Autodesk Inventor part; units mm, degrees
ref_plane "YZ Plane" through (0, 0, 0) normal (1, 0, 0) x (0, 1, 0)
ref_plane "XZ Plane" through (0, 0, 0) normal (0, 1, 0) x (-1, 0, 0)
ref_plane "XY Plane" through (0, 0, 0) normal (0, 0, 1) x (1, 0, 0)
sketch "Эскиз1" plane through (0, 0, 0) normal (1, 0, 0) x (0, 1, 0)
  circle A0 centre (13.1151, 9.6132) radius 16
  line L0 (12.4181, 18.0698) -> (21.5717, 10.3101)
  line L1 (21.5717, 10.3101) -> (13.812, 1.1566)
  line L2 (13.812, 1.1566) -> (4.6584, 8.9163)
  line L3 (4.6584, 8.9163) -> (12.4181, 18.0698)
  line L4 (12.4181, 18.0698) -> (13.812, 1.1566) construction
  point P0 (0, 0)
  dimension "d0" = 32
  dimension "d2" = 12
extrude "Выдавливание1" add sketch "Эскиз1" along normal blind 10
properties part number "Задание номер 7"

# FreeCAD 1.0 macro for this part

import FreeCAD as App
import Part
import Sketcher
Q = App.Units.Quantity

doc = App.newDocument("Part")
params = doc.addObject("Spreadsheet::Sheet", "Params")
for row, (alias, value) in enumerate([
    ("sketch1_diameter", "32 mm"),
    ("sketch1_length", "12 mm"),
    ("pad1_length", "10 mm"),
], start=1):
    params.set(f"A{row}", alias)
    params.set(f"B{row}", "=" + value)
    params.setAlias(f"B{row}", alias)

body = doc.addObject("PartDesign::Body", "Body")

sketch1 = body.newObject("Sketcher::SketchObject", "Sketch")
sketch1.AttachmentSupport = (doc.getObject("YZ_Plane"), [""])
sketch1.MapMode = "FlatFace"
sketch1.addGeometry([
    Part.Circle(App.Vector(13, 10, 0), App.Vector(0, 0, 1), 16),
    Part.LineSegment(App.Vector(5, 9, 0), App.Vector(12, 18, 0)),
    Part.LineSegment(App.Vector(12, 18, 0), App.Vector(22, 10, 0)),
    Part.LineSegment(App.Vector(22, 10, 0), App.Vector(14, 1, 0)),
    Part.LineSegment(App.Vector(14, 1, 0), App.Vector(5, 9, 0)),
], False)
sketch1.addConstraint([
    Sketcher.Constraint("Coincident", 1, 2, 2, 1),
    Sketcher.Constraint("Coincident", 2, 2, 3, 1),
    Sketcher.Constraint("Coincident", 3, 2, 4, 1),
    Sketcher.Constraint("Coincident", 4, 2, 1, 1),
    Sketcher.Constraint("Perpendicular", 1, 2),
    Sketcher.Constraint("Perpendicular", 2, 3),
    Sketcher.Constraint("Perpendicular", 3, 4),
    Sketcher.Constraint("Equal", 1, 2),
    Sketcher.Constraint("Diameter", 0, Q("32 mm")),
    Sketcher.Constraint("Distance", 1, Q("12 mm")),
    Sketcher.Constraint("Angle", 1, Q("49.711 deg")),
    Sketcher.Constraint("DistanceY", -1, 1, 2, 2, Q("10.31 mm")),
    Sketcher.Constraint("DistanceX", -1, 1, 0, 3, Q("13.115 mm")),
    Sketcher.Constraint("DistanceX", -1, 1, 1, 2, Q("12.418 mm")),
    Sketcher.Constraint("DistanceY", 0, 3, 2, 2, Q("0.697 mm")),
])
sketch1.setExpression("Constraints[8]", "Params.sketch1_diameter")
sketch1.setExpression("Constraints[9]", "Params.sketch1_length")
pad1 = body.newObject("PartDesign::Pad", "Pad")
pad1.Profile = sketch1
pad1.setExpression("Length", "Params.pad1_length")

doc.recompute()
